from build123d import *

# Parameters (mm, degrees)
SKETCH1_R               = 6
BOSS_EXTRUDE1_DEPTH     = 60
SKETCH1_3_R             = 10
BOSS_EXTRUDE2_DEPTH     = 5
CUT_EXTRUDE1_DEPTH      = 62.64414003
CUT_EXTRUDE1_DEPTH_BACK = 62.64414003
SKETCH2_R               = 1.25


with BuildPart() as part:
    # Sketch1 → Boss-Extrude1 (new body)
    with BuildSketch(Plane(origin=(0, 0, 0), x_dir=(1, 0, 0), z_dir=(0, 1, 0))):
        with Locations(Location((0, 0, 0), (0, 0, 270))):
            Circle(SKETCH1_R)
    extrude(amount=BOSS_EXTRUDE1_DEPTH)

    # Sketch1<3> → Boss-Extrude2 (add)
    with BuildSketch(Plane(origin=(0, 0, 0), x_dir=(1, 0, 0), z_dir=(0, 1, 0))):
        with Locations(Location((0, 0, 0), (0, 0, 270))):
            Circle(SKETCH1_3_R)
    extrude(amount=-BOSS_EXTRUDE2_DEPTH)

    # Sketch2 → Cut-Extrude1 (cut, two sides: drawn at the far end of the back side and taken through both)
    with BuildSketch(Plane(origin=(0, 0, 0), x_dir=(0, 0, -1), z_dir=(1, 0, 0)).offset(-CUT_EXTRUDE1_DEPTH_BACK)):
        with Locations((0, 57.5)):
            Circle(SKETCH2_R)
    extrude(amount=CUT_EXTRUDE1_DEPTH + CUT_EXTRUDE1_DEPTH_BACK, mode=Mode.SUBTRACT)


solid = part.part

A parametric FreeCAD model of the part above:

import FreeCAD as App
import Part
import Sketcher

doc = App.newDocument("Part")
body = doc.addObject("PartDesign::Body", "Body")

sketch1 = doc.addObject("Sketcher::SketchObject", "Sketch")
body.addObject(sketch1)
sketch1.AttachmentSupport = (doc.XZ_Plane, [""])
sketch1.MapMode = "FlatFace"
sketch1.addGeometry(Part.Circle(App.Vector(0, 0, 0), App.Vector(0, 0, 1), 6), False)
sketch1.addConstraint([
    Sketcher.Constraint("Coincident", 0, 3, -1, 1),
    Sketcher.Constraint("Diameter", 0, 12.0),
])
pad1 = doc.addObject("PartDesign::Pad", "Pad")
body.addObject(pad1)
pad1.Profile = sketch1
pad1.Length = 60
pad1.Reversed = True

sketch2 = doc.addObject("Sketcher::SketchObject", "Sketch001")
body.addObject(sketch2)
sketch2.AttachmentSupport = (doc.XZ_Plane, [""])
sketch2.MapMode = "FlatFace"
sketch2.addGeometry(Part.Circle(App.Vector(0, 0, 0), App.Vector(0, 0, 1), 10), False)
sketch2.addConstraint([
    Sketcher.Constraint("Coincident", 0, 3, -1, 1),
    Sketcher.Constraint("Diameter", 0, 20.0),
])
pad2 = doc.addObject("PartDesign::Pad", "Pad001")
body.addObject(pad2)
pad2.Profile = sketch2
pad2.Length = 5

sketch3 = doc.addObject("Sketcher::SketchObject", "Sketch002")
body.addObject(sketch3)
sketch3.AttachmentSupport = (doc.YZ_Plane, [""])
sketch3.MapMode = "FlatFace"
sketch3.addGeometry(Part.Circle(App.Vector(57.5, 0, 0), App.Vector(0, 0, 1), 1.2), False)
sketch3.addConstraint([
    Sketcher.Constraint("PointOnObject", 0, 3, -1),
    Sketcher.Constraint("Diameter", 0, 2.5),
    Sketcher.Constraint("DistanceX", -1, 1, 0, 3, 57.5),
])
pocket1 = doc.addObject("PartDesign::Pocket", "Pocket")
body.addObject(pocket1)
pocket1.Profile = sketch3
pocket1.Type = "ThroughAll"
pocket1.Midplane = True

doc.recompute()
